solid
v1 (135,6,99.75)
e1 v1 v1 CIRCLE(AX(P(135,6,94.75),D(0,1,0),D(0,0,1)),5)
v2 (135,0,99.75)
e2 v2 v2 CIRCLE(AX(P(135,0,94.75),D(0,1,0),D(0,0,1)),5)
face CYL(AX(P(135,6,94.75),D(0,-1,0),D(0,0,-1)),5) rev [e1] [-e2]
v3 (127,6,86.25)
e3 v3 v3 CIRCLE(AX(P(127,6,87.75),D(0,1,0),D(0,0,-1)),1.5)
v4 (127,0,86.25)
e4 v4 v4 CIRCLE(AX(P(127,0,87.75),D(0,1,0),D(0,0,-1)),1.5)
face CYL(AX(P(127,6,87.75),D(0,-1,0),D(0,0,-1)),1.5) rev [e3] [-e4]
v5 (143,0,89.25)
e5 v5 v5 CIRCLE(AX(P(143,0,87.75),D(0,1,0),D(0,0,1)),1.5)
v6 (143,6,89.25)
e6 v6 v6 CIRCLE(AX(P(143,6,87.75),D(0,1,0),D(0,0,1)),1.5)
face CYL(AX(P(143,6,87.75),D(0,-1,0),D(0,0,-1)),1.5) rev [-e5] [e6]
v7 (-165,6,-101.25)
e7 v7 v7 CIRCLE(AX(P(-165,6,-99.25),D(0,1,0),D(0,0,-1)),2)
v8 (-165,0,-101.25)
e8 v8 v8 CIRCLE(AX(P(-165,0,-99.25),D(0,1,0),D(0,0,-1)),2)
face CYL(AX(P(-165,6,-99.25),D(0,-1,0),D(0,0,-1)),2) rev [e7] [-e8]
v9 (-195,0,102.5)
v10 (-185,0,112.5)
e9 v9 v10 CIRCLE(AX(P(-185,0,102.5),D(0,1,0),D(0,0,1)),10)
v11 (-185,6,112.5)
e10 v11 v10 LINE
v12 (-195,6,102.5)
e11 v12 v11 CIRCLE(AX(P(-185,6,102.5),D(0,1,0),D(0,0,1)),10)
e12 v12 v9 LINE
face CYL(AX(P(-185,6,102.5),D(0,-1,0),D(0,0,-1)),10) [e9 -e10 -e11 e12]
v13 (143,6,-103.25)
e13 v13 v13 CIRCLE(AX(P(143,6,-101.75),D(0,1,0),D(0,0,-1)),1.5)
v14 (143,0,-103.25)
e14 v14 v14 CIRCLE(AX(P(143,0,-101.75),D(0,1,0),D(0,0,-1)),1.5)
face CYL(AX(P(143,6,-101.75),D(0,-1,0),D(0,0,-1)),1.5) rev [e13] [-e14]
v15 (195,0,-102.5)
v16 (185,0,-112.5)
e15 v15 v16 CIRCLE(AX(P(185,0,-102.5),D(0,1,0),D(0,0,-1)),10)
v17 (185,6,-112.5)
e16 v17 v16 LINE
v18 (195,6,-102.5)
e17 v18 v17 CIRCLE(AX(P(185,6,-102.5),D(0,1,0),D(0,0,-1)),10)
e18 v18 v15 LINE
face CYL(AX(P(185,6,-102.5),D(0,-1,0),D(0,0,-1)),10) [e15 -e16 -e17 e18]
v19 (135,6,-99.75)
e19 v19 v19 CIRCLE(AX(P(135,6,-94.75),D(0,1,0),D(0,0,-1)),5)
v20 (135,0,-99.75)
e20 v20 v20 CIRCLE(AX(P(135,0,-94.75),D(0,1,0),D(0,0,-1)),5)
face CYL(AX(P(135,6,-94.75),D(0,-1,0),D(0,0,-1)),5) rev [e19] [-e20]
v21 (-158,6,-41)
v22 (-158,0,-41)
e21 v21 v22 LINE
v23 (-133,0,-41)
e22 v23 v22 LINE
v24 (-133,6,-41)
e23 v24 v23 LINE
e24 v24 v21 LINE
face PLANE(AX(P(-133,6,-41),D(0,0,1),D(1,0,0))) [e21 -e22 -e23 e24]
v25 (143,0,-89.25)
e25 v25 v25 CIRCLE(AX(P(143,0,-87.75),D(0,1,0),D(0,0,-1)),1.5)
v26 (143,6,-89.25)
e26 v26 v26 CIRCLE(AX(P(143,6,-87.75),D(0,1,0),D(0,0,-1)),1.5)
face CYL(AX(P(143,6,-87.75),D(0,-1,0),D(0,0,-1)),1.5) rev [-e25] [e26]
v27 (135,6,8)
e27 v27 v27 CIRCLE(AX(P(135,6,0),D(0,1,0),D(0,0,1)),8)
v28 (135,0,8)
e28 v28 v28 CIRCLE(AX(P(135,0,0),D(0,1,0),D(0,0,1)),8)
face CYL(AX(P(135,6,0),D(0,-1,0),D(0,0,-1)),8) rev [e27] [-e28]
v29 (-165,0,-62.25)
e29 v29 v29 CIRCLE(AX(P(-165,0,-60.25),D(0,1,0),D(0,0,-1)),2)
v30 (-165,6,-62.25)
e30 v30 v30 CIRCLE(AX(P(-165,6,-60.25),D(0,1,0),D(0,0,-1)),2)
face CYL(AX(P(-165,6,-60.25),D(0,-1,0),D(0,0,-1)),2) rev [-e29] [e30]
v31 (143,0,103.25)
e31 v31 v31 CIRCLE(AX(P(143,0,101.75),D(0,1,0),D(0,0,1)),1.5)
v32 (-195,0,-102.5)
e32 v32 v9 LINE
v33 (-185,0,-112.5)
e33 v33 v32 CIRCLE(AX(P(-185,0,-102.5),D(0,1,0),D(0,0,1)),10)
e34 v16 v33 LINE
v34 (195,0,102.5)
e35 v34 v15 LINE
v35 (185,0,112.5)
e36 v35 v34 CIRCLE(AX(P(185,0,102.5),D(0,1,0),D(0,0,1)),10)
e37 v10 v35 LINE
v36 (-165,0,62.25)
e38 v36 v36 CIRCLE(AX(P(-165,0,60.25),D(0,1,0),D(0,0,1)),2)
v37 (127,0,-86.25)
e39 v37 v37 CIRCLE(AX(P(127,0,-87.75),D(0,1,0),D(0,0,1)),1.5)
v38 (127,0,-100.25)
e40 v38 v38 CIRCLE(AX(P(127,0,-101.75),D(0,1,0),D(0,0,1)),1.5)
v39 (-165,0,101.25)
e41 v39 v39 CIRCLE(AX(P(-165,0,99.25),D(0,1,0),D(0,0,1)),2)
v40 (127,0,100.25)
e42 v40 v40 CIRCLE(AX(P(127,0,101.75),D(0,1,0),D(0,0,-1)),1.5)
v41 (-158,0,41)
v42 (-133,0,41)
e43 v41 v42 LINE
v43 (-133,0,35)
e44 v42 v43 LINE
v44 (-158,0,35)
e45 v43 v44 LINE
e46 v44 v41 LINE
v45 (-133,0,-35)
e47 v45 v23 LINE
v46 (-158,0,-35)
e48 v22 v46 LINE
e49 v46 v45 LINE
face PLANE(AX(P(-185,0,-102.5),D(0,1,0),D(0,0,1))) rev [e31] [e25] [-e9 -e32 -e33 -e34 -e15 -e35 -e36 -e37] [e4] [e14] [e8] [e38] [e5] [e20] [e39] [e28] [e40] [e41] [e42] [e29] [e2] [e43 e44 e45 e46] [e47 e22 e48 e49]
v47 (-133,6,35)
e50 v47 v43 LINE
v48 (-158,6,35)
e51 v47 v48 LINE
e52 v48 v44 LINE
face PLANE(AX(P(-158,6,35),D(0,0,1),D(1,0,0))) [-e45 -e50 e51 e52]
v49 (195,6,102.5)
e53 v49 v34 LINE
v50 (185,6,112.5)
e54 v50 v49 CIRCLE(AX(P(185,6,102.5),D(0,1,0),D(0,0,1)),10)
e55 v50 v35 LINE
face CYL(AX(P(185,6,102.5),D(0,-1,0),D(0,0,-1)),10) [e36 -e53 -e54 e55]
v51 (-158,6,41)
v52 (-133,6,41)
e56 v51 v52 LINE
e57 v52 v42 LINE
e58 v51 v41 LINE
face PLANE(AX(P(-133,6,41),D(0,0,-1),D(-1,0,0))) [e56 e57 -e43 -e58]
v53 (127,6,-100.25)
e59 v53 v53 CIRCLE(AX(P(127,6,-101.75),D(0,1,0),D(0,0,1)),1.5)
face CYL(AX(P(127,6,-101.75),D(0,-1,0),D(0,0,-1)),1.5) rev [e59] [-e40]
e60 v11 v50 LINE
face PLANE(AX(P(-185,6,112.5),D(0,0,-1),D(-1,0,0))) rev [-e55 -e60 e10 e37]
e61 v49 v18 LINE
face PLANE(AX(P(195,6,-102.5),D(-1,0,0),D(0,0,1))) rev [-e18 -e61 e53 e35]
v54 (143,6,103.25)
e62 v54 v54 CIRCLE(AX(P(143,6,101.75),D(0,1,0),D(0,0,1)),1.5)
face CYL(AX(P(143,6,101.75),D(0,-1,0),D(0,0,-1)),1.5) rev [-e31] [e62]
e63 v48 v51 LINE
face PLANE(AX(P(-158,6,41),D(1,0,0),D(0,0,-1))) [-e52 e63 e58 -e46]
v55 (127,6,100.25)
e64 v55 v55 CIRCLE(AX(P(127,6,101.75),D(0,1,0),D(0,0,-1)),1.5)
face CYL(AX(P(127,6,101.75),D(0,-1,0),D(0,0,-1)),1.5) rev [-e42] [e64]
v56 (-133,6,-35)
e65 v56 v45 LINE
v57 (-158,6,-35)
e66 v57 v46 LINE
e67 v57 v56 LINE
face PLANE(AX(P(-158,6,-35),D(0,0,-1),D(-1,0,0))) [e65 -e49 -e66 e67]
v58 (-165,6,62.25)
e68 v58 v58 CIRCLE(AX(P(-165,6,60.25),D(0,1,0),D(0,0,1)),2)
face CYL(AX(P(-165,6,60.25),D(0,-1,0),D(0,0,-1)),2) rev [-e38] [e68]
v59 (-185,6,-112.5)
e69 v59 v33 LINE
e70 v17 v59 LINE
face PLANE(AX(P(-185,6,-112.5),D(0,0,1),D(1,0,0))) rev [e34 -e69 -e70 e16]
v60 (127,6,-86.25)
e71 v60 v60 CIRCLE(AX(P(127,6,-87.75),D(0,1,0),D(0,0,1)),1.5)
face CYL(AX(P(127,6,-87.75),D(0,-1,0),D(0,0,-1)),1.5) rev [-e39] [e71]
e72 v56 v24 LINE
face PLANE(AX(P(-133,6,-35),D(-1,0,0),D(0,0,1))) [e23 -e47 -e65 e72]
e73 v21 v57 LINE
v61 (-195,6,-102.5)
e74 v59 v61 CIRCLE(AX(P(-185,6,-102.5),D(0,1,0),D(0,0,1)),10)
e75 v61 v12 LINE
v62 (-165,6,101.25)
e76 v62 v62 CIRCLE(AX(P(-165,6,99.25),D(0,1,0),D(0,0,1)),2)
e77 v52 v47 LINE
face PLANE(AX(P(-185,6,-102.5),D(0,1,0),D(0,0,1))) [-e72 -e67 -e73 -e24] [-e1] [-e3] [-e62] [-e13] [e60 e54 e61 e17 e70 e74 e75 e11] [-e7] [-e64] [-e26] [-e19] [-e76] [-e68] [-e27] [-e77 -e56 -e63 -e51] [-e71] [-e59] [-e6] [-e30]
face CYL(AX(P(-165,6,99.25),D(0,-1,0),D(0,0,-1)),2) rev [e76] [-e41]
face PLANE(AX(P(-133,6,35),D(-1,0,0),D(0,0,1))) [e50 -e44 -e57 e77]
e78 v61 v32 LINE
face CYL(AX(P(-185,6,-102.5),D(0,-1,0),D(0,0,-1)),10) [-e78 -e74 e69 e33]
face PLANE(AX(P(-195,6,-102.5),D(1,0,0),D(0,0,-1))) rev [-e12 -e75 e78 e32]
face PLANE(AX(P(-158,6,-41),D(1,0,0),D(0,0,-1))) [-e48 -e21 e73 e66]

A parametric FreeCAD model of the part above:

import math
import FreeCAD as App
import Part
import Sketcher
from FreeCAD import Vector
Q = App.Units.Quantity

doc = App.newDocument("Part")
body = doc.addObject("PartDesign::Body", "Body")

# Sketch on XZ plane
sketch1 = doc.addObject("Sketcher::SketchObject", "Sketch")
body.addObject(sketch1)
sketch1.AttachmentSupport = (doc.XZ_Plane, [""])
sketch1.MapMode = "FlatFace"
sketch1.addGeometry([
    Part.LineSegment(Vector(185, -112.5, 0), Vector(-185, -112.5, 0)),  # 0
    Part.ArcOfCircle(Part.Circle(Vector(-185, -102.5, 0), Vector(0, 0, 1), 10), math.radians(180), math.radians(270)),  # 1
    Part.LineSegment(Vector(-195, -102.5, 0), Vector(-195, 102.5, 0)),  # 2
    Part.ArcOfCircle(Part.Circle(Vector(-185, 102.5, 0), Vector(0, 0, 1), 10), math.radians(90), math.radians(180)),  # 3
    Part.LineSegment(Vector(-185, 112.5, 0), Vector(185, 112.5, 0)),  # 4
    Part.ArcOfCircle(Part.Circle(Vector(185, 102.5, 0), Vector(0, 0, 1), 10), math.radians(0), math.radians(90)),  # 5
    Part.LineSegment(Vector(195, 102.5, 0), Vector(195, -102.5, 0)),  # 6
    Part.ArcOfCircle(Part.Circle(Vector(185, -102.5, 0), Vector(0, 0, 1), 10), math.radians(-90), math.radians(0)),  # 7
    Part.Circle(Vector(143, 101.75, 0), Vector(0, 0, 1), 1.5),  # 8
    Part.Circle(Vector(127, 101.75, 0), Vector(0, 0, 1), 1.5),  # 9
    Part.Circle(Vector(135, 94.75, 0), Vector(0, 0, 1), 5),  # 10
    Part.Circle(Vector(143, 87.75, 0), Vector(0, 0, 1), 1.5),  # 11
    Part.Circle(Vector(127, 87.75, 0), Vector(0, 0, 1), 1.5),  # 12
    Part.Circle(Vector(-165, 99.25, 0), Vector(0, 0, 1), 2),  # 13
    Part.Circle(Vector(-165, 60.25, 0), Vector(0, 0, 1), 2),  # 14
    Part.LineSegment(Vector(-158, 41, 0), Vector(-158, 35, 0)),  # 15
    Part.LineSegment(Vector(-158, 35, 0), Vector(-133, 35, 0)),  # 16
    Part.LineSegment(Vector(-133, 35, 0), Vector(-133, 41, 0)),  # 17
    Part.LineSegment(Vector(-133, 41, 0), Vector(-158, 41, 0)),  # 18
    Part.Circle(Vector(135, 0, 0), Vector(0, 0, 1), 8),  # 19
    Part.Circle(Vector(143, -87.75, 0), Vector(0, 0, 1), 1.5),  # 20
    Part.Circle(Vector(127, -87.75, 0), Vector(0, 0, 1), 1.5),  # 21
    Part.Circle(Vector(135, -94.75, 0), Vector(0, 0, 1), 5),  # 22
    Part.Circle(Vector(143, -101.75, 0), Vector(0, 0, 1), 1.5),  # 23
    Part.Circle(Vector(127, -101.75, 0), Vector(0, 0, 1), 1.5),  # 24
    Part.LineSegment(Vector(-158, -35, 0), Vector(-158, -41, 0)),  # 25
    Part.LineSegment(Vector(-158, -41, 0), Vector(-133, -41, 0)),  # 26
    Part.LineSegment(Vector(-133, -41, 0), Vector(-133, -35, 0)),  # 27
    Part.LineSegment(Vector(-133, -35, 0), Vector(-158, -35, 0)),  # 28
    Part.Circle(Vector(-165, -60.25, 0), Vector(0, 0, 1), 2),  # 29
    Part.Circle(Vector(-165, -99.25, 0), Vector(0, 0, 1), 2),  # 30
], False)
sketch1.addConstraint([
    Sketcher.Constraint("Tangent", 0, 2, 1, 2),
    Sketcher.Constraint("Tangent", 1, 1, 2, 1),
    Sketcher.Constraint("Tangent", 2, 2, 3, 2),
    Sketcher.Constraint("Tangent", 3, 1, 4, 1),
    Sketcher.Constraint("Tangent", 4, 2, 5, 2),
    Sketcher.Constraint("Tangent", 5, 1, 6, 1),
    Sketcher.Constraint("Tangent", 6, 2, 7, 2),
    Sketcher.Constraint("Tangent", 7, 1, 0, 1),
    Sketcher.Constraint("Coincident", 15, 2, 16, 1),
    Sketcher.Constraint("Coincident", 16, 2, 17, 1),
    Sketcher.Constraint("Coincident", 17, 2, 18, 1),
    Sketcher.Constraint("Coincident", 18, 2, 15, 1),
    Sketcher.Constraint("Coincident", 25, 2, 26, 1),
    Sketcher.Constraint("Coincident", 26, 2, 27, 1),
    Sketcher.Constraint("Coincident", 27, 2, 28, 1),
    Sketcher.Constraint("Coincident", 28, 2, 25, 1),
    Sketcher.Constraint("Horizontal", 0),
    Sketcher.Constraint("Vertical", 2),
    Sketcher.Constraint("Horizontal", 4),
    Sketcher.Constraint("Vertical", 6),
    Sketcher.Constraint("Vertical", 15),
    Sketcher.Constraint("Horizontal", 16),
    Sketcher.Constraint("Vertical", 17),
    Sketcher.Constraint("Horizontal", 18),
    Sketcher.Constraint("Vertical", 25),
    Sketcher.Constraint("Horizontal", 26),
    Sketcher.Constraint("Vertical", 27),
    Sketcher.Constraint("Horizontal", 28),
    Sketcher.Constraint("Equal", 1, 3),
    Sketcher.Constraint("Equal", 3, 5),
    Sketcher.Constraint("Equal", 5, 7),
    Sketcher.Constraint("Equal", 8, 9),
    Sketcher.Constraint("Equal", 9, 11),
    Sketcher.Constraint("Equal", 11, 12),
    Sketcher.Constraint("Equal", 13, 14),
    Sketcher.Constraint("Equal", 12, 20),
    Sketcher.Constraint("Equal", 20, 21),
    Sketcher.Constraint("Equal", 10, 22),
    Sketcher.Constraint("Equal", 21, 23),
    Sketcher.Constraint("Equal", 23, 24),
    Sketcher.Constraint("Equal", 14, 29),
    Sketcher.Constraint("Equal", 29, 30),
    Sketcher.Constraint("Symmetric", 1, 3, 5, 3, -1, 1),
    Sketcher.Constraint("Symmetric", 11, 3, 20, 3, -1),
    Sketcher.Constraint("Symmetric", 12, 3, 21, 3, -1),
    Sketcher.Constraint("Symmetric", 10, 3, 22, 3, -1),
    Sketcher.Constraint("Symmetric", 8, 3, 23, 3, -1),
    Sketcher.Constraint("Symmetric", 9, 3, 24, 3, -1),
    Sketcher.Constraint("Symmetric", 14, 3, 29, 3, -1),
    Sketcher.Constraint("Symmetric", 13, 3, 30, 3, -1),
    Sketcher.Constraint("Symmetric", 18, 2, 25, 2, -1),
    Sketcher.Constraint("Symmetric", 16, 2, 27, 2, -1),
    Sketcher.Constraint("PointOnObject", 19, 3, -1),
    Sketcher.Constraint("Horizontal", 8, 3, 9, 3),
    Sketcher.Constraint("Horizontal", 11, 3, 12, 3),
    Sketcher.Constraint("Vertical", 8, 3, 11, 3),
    Sketcher.Constraint("Vertical", 9, 3, 12, 3),
    Sketcher.Constraint("Vertical", 13, 3, 14, 3),
    Sketcher.Constraint("Vertical", 10, 3, 19, 3),
    Sketcher.Constraint("Diameter", 8, Q("3 mm")),
    Sketcher.Constraint("Diameter", 10, Q("10 mm")),
    Sketcher.Constraint("Diameter", 13, Q("4 mm")),
    Sketcher.Constraint("Diameter", 19, Q("16 mm")),
    Sketcher.Constraint("Radius", 1, Q("10 mm")),
    Sketcher.Constraint("DistanceX", 0, 2, 0, 1, Q("370 mm")),
    Sketcher.Constraint("DistanceX", 16, 1, 16, 2, Q("25 mm")),
    Sketcher.Constraint("DistanceY", 2, 1, 2, 2, Q("205 mm")),
    Sketcher.Constraint("DistanceY", 15, 2, 15, 1, Q("6 mm")),
    Sketcher.Constraint("DistanceX", -1, 1, 8, 3, Q("143 mm")),
    Sketcher.Constraint("DistanceX", -1, 1, 9, 3, Q("127 mm")),
    Sketcher.Constraint("DistanceX", -1, 1, 10, 3, Q("135 mm")),
    Sketcher.Constraint("DistanceX", 13, 3, -1, 1, Q("165 mm")),
    Sketcher.Constraint("DistanceX", 15, 2, -1, 1, Q("158 mm")),
    Sketcher.Constraint("DistanceY", -1, 1, 15, 2, Q("35 mm")),
    Sketcher.Constraint("DistanceY", 10, 3, 8, 3, Q("7 mm")),
    Sketcher.Constraint("DistanceY", 11, 3, 10, 3, Q("7 mm")),
    Sketcher.Constraint("DistanceY", 14, 3, 13, 3, Q("39 mm")),
    Sketcher.Constraint("DistanceY", 13, 3, 9, 3, Q("2.5 mm")),
    Sketcher.Constraint("DistanceY", 20, 3, 11, 3, Q("175.5 mm")),
])
pad1 = doc.addObject("PartDesign::Pad", "Pad")
body.addObject(pad1)
pad1.Profile = sketch1
pad1.Length = 6
pad1.Reversed = True

doc.recompute()
